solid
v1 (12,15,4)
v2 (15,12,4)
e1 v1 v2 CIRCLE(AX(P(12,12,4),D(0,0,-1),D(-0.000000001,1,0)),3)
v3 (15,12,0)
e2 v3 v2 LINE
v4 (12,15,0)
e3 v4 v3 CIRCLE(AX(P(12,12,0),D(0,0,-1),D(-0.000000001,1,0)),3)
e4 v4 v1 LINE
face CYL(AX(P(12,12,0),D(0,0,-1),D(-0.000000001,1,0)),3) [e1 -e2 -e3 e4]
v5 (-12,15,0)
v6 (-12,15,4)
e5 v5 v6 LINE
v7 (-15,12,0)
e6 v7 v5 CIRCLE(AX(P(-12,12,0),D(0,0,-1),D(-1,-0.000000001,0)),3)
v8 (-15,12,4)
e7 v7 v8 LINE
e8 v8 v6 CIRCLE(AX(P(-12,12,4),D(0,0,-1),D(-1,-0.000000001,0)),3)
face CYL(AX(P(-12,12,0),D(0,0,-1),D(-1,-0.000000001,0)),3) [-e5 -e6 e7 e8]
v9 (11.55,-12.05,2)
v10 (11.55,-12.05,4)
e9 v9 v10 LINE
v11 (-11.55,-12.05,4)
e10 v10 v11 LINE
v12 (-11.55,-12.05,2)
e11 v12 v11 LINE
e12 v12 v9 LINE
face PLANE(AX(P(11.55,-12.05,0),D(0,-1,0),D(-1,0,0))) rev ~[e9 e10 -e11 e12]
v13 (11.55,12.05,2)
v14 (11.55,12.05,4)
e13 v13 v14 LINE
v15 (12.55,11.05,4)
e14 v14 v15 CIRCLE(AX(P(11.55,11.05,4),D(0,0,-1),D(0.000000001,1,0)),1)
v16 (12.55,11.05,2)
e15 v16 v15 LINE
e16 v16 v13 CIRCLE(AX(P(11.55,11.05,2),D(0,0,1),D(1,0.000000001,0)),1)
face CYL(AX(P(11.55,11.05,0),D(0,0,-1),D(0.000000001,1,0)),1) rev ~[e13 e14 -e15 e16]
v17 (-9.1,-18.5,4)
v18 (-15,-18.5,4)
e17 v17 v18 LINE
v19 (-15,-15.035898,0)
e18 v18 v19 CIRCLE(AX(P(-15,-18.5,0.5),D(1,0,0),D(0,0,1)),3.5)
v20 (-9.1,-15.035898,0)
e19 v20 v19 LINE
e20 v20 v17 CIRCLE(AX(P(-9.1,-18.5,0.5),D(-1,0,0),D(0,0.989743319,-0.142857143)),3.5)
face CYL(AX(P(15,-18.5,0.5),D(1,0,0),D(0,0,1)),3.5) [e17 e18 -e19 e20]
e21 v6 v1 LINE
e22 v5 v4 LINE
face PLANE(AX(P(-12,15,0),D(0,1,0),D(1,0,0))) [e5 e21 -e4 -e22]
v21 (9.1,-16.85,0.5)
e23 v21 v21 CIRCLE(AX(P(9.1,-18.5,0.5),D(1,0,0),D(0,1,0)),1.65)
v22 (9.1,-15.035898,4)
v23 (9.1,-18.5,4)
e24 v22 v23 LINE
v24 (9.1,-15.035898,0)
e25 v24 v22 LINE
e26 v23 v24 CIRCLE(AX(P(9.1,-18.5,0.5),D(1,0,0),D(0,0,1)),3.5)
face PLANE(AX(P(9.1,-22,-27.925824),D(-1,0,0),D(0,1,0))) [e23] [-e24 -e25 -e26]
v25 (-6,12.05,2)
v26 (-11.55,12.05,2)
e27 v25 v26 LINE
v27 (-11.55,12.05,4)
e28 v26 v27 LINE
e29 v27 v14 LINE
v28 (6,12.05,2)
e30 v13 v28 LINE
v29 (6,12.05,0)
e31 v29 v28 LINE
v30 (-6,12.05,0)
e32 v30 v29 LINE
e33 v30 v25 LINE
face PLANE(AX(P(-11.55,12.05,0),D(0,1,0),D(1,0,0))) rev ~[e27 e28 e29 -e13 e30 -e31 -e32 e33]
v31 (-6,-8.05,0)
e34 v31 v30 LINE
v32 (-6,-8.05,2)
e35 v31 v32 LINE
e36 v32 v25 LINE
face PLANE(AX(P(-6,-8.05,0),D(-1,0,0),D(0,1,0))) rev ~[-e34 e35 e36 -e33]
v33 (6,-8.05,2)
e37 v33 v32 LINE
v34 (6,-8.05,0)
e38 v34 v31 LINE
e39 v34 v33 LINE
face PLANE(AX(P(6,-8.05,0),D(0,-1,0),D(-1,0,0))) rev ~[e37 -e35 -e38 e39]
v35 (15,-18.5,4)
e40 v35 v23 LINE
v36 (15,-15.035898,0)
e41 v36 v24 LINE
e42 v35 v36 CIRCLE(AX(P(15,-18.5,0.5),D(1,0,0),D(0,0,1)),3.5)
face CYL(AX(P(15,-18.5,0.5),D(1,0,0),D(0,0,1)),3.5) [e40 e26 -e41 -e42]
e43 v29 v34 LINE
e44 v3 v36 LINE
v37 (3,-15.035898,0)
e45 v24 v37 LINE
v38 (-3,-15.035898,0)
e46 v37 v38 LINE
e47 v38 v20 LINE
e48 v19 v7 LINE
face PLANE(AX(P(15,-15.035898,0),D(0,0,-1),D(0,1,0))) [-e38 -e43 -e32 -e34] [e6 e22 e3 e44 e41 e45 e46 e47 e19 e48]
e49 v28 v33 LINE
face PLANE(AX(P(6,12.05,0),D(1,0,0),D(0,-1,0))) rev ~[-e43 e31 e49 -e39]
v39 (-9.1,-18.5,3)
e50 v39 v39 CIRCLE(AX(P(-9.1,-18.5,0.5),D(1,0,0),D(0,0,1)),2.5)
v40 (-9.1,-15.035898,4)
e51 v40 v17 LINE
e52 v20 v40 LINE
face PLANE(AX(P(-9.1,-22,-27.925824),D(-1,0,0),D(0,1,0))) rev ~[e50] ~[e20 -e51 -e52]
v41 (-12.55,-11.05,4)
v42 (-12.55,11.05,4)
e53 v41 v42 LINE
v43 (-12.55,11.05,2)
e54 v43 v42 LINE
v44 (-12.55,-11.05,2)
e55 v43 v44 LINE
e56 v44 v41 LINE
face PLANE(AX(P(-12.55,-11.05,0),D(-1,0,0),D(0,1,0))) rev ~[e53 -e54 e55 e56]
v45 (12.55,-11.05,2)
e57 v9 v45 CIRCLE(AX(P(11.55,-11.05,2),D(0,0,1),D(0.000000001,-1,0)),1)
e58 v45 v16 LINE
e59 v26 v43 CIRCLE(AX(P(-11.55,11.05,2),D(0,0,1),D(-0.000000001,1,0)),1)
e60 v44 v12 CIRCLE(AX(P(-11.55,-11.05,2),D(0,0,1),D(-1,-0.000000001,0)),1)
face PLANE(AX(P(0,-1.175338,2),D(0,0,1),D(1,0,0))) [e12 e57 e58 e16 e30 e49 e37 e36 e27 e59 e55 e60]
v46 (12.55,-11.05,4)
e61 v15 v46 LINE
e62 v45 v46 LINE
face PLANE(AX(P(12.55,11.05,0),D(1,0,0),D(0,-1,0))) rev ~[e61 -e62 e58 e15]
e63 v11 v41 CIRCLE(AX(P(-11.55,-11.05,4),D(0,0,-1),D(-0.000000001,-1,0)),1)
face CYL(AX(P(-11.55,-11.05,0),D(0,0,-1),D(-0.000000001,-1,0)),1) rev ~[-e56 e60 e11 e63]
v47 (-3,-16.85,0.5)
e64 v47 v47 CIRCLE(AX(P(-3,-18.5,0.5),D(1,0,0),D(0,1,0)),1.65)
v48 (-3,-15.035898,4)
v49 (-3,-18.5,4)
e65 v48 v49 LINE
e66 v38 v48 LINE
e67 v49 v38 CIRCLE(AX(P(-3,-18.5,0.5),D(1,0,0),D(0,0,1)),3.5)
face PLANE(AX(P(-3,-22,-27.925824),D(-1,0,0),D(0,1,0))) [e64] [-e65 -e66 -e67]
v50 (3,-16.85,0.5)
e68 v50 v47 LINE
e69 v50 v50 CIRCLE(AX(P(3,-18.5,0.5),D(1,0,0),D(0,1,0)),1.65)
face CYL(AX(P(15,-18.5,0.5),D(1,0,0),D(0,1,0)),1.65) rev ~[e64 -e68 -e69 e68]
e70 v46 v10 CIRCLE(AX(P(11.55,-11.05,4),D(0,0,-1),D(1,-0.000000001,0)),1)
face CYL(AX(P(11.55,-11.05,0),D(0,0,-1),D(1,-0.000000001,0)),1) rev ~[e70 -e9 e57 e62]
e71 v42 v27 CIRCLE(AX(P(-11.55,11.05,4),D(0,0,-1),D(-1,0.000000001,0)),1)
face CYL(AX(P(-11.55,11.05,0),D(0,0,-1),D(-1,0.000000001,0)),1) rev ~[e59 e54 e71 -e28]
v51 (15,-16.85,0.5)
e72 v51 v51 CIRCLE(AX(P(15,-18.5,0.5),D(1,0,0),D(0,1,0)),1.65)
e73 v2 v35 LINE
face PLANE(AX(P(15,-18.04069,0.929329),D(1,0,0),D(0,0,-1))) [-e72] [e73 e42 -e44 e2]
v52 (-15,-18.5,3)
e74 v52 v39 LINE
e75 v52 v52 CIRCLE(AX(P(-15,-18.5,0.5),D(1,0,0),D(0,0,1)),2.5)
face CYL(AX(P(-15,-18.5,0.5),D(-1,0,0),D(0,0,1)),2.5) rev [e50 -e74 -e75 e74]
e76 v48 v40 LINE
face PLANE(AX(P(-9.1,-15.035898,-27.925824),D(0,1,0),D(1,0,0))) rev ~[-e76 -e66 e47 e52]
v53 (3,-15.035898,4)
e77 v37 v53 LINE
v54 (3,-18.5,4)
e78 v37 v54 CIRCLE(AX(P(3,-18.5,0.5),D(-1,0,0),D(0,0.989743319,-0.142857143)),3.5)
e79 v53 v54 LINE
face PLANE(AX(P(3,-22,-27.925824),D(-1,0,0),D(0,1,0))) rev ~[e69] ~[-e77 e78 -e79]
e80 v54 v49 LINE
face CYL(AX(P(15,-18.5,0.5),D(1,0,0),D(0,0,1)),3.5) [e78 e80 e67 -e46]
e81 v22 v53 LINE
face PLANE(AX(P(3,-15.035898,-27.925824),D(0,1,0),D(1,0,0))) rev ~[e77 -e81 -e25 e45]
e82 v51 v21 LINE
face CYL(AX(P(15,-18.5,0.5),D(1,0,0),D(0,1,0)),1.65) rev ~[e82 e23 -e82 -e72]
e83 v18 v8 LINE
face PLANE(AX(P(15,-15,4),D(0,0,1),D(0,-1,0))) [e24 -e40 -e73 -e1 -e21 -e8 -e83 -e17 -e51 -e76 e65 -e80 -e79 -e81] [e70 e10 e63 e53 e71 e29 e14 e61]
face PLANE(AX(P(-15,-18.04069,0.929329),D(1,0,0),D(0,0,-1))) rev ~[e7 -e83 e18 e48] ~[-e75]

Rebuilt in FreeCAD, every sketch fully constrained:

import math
import FreeCAD as App
import Part
import Sketcher
Q = App.Units.Quantity


def add_polygon(sketch, points):
    """Adds a closed chain of lines whose ends are joined by coincident constraints."""
    first, n = sketch.GeometryCount, len(points)
    for a, b in zip(points, points[1:] + points[:1]):
        sketch.addGeometry(Part.LineSegment(App.Vector(*a, 0), App.Vector(*b, 0)), False)
    for i in range(n):
        sketch.addConstraint(Sketcher.Constraint("Coincident", first + i, 2, first + (i + 1) % n, 1))

doc = App.newDocument("Part")
body = doc.addObject("PartDesign::Body", "Body")

sketch1 = body.newObject("Sketcher::SketchObject", "Sketch")
sketch1.AttachmentSupport = (doc.getObject("XY_Plane"), [""])
sketch1.MapMode = "FlatFace"
sketch1.addGeometry([
    Part.LineSegment(App.Vector(-6, 12.1, 0), App.Vector(-11.6, 12.1, 0)),
    Part.ArcOfCircle(Part.Circle(App.Vector(-11.5, 11, 0), App.Vector(0, 0, 1), 1), math.radians(90), math.radians(180)),
    Part.LineSegment(App.Vector(-12.6, 11.1, 0), App.Vector(-12.6, -11.1, 0)),
    Part.ArcOfCircle(Part.Circle(App.Vector(-11.5, -11, 0), App.Vector(0, 0, 1), 1), math.radians(-180), math.radians(-90)),
    Part.LineSegment(App.Vector(-11.6, -12.1, 0), App.Vector(11.6, -12.1, 0)),
    Part.ArcOfCircle(Part.Circle(App.Vector(11.5, -11, 0), App.Vector(0, 0, 1), 1), math.radians(-90), math.radians(0)),
    Part.LineSegment(App.Vector(12.6, -11.1, 0), App.Vector(12.6, 11.1, 0)),
    Part.ArcOfCircle(Part.Circle(App.Vector(11.5, 11, 0), App.Vector(0, 0, 1), 1), math.radians(0), math.radians(90)),
    Part.LineSegment(App.Vector(11.6, 12.1, 0), App.Vector(6, 12.1, 0)),
    Part.LineSegment(App.Vector(6, 12.1, 0), App.Vector(6, -8.1, 0)),
    Part.LineSegment(App.Vector(6, -8.1, 0), App.Vector(-6, -8.1, 0)),
    Part.LineSegment(App.Vector(-6, -8.1, 0), App.Vector(-6, 12.1, 0)),
], False)
sketch1.addConstraint([
    Sketcher.Constraint("Tangent", 0, 2, 1, 1),
    Sketcher.Constraint("Tangent", 1, 2, 2, 1),
    Sketcher.Constraint("Tangent", 2, 2, 3, 1),
    Sketcher.Constraint("Tangent", 3, 2, 4, 1),
    Sketcher.Constraint("Tangent", 4, 2, 5, 1),
    Sketcher.Constraint("Tangent", 5, 2, 6, 1),
    Sketcher.Constraint("Tangent", 6, 2, 7, 1),
    Sketcher.Constraint("Tangent", 7, 2, 8, 1),
    Sketcher.Constraint("Coincident", 8, 2, 9, 1),
    Sketcher.Constraint("Coincident", 9, 2, 10, 1),
    Sketcher.Constraint("Coincident", 10, 2, 11, 1),
    Sketcher.Constraint("Coincident", 11, 2, 0, 1),
    Sketcher.Constraint("Horizontal", 0),
    Sketcher.Constraint("Vertical", 2),
    Sketcher.Constraint("Horizontal", 4),
    Sketcher.Constraint("Vertical", 6),
    Sketcher.Constraint("Horizontal", 8),
    Sketcher.Constraint("Vertical", 9),
    Sketcher.Constraint("Horizontal", 10),
    Sketcher.Constraint("Vertical", 11),
    Sketcher.Constraint("Equal", 1, 3),
    Sketcher.Constraint("Equal", 3, 5),
    Sketcher.Constraint("Equal", 5, 7),
    Sketcher.Constraint("Symmetric", 1, 3, 5, 3, -1, 1),
    Sketcher.Constraint("Symmetric", 8, 2, 11, 2, -2),
    Sketcher.Constraint("Radius", 1, Q("1 mm")),
    Sketcher.Constraint("DistanceX", 10, 2, 10, 1, Q("12 mm")),
    Sketcher.Constraint("DistanceX", 4, 1, 4, 2, Q("23.1 mm")),
    Sketcher.Constraint("DistanceY", 2, 2, 2, 1, Q("22.1 mm")),
    Sketcher.Constraint("DistanceY", 9, 2, 9, 1, Q("20.1 mm")),
])
pad1 = body.newObject("PartDesign::Pad", "Pad")
pad1.Profile = sketch1
pad1.Length = 2

sketch2 = body.newObject("Sketcher::SketchObject", "Sketch001")
sketch2.AttachmentSupport = (doc.getObject("XY_Plane"), [""])
sketch2.MapMode = "FlatFace"
sketch2.addGeometry([
    Part.LineSegment(App.Vector(12, 15, 0), App.Vector(-12, 15, 0)),
    Part.ArcOfCircle(Part.Circle(App.Vector(-12, 12, 0), App.Vector(0, 0, 1), 3), math.radians(90), math.radians(180)),
    Part.LineSegment(App.Vector(-15, 12, 0), App.Vector(-15, -15, 0)),
    Part.LineSegment(App.Vector(-15, -15, 0), App.Vector(15, -15, 0)),
    Part.LineSegment(App.Vector(15, -15, 0), App.Vector(15, 12, 0)),
    Part.ArcOfCircle(Part.Circle(App.Vector(12, 12, 0), App.Vector(0, 0, 1), 3), math.radians(0), math.radians(90)),
    Part.LineSegment(App.Vector(-11.6, 12.1, 0), App.Vector(11.6, 12.1, 0)),
    Part.ArcOfCircle(Part.Circle(App.Vector(11.5, 11, 0), App.Vector(0, 0, 1), 1), math.radians(0), math.radians(90)),
    Part.LineSegment(App.Vector(12.6, 11.1, 0), App.Vector(12.6, -11.1, 0)),
    Part.ArcOfCircle(Part.Circle(App.Vector(11.5, -11, 0), App.Vector(0, 0, 1), 1), math.radians(-90), math.radians(0)),
    Part.LineSegment(App.Vector(11.6, -12.1, 0), App.Vector(-11.6, -12.1, 0)),
    Part.ArcOfCircle(Part.Circle(App.Vector(-11.5, -11, 0), App.Vector(0, 0, 1), 1), math.radians(-180), math.radians(-90)),
    Part.LineSegment(App.Vector(-12.6, -11.1, 0), App.Vector(-12.6, 11.1, 0)),
    Part.ArcOfCircle(Part.Circle(App.Vector(-11.5, 11, 0), App.Vector(0, 0, 1), 1), math.radians(90), math.radians(180)),
], False)
sketch2.addConstraint([
    Sketcher.Constraint("Tangent", 0, 2, 1, 1),
    Sketcher.Constraint("Tangent", 1, 2, 2, 1),
    Sketcher.Constraint("Coincident", 2, 2, 3, 1),
    Sketcher.Constraint("Coincident", 3, 2, 4, 1),
    Sketcher.Constraint("Tangent", 4, 2, 5, 1),
    Sketcher.Constraint("Tangent", 5, 2, 0, 1),
    Sketcher.Constraint("Tangent", 6, 2, 7, 2),
    Sketcher.Constraint("Tangent", 7, 1, 8, 1),
    Sketcher.Constraint("Tangent", 8, 2, 9, 2),
    Sketcher.Constraint("Tangent", 9, 1, 10, 1),
    Sketcher.Constraint("Tangent", 10, 2, 11, 2),
    Sketcher.Constraint("Tangent", 11, 1, 12, 1),
    Sketcher.Constraint("Tangent", 12, 2, 13, 2),
    Sketcher.Constraint("Tangent", 13, 1, 6, 1),
    Sketcher.Constraint("Horizontal", 0),
    Sketcher.Constraint("Vertical", 2),
    Sketcher.Constraint("Horizontal", 3),
    Sketcher.Constraint("Vertical", 4),
    Sketcher.Constraint("Horizontal", 6),
    Sketcher.Constraint("Vertical", 8),
    Sketcher.Constraint("Horizontal", 10),
    Sketcher.Constraint("Vertical", 12),
    Sketcher.Constraint("Equal", 1, 5),
    Sketcher.Constraint("Equal", 7, 9),
    Sketcher.Constraint("Equal", 9, 11),
    Sketcher.Constraint("Equal", 11, 13),
    Sketcher.Constraint("Symmetric", 7, 3, 11, 3, -1, 1),
    Sketcher.Constraint("Radius", 1, Q("3 mm")),
    Sketcher.Constraint("Radius", 7, Q("1 mm")),
    Sketcher.Constraint("DistanceX", 0, 2, 0, 1, Q("24 mm")),
    Sketcher.Constraint("DistanceY", 2, 2, 2, 1, Q("27 mm")),
    Sketcher.Constraint("DistanceX", 6, 1, 6, 2, Q("23.1 mm")),
    Sketcher.Constraint("DistanceY", 8, 2, 8, 1, Q("22.1 mm")),
    Sketcher.Constraint("DistanceX", 1, 3, -1, 1, Q("12 mm")),
    Sketcher.Constraint("DistanceY", -1, 1, 1, 3, Q("12 mm")),
])
pad2 = body.newObject("PartDesign::Pad", "Pad001")
pad2.Profile = sketch2
pad2.Length = 4

sketch3 = body.newObject("Sketcher::SketchObject", "Sketch002")
sketch3.AttachmentSupport = (doc.getObject("YZ_Plane"), [""])
sketch3.MapMode = "FlatFace"
sketch3.AttachmentOffset = App.Placement(App.Vector(0, 0, 15), App.Rotation())
sketch3.addGeometry([
    Part.LineSegment(App.Vector(-15.036, 0, 0), App.Vector(-15, 0, 0)),
    Part.LineSegment(App.Vector(-15, 0, 0), App.Vector(-15, 4, 0)),
    Part.LineSegment(App.Vector(-15, 4, 0), App.Vector(-18.5, 4, 0)),
    Part.ArcOfCircle(Part.Circle(App.Vector(-18.5, 0.5, 0), App.Vector(0, 0, 1), 3.5), math.radians(90), math.radians(352)),
    Part.Circle(App.Vector(-18.5, 0.5, 0), App.Vector(0, 0, 1), 1.65),
], False)
sketch3.addConstraint([
    Sketcher.Constraint("Coincident", 0, 2, 1, 1),
    Sketcher.Constraint("Coincident", 1, 2, 2, 1),
    Sketcher.Constraint("Tangent", 2, 2, 3, 1),
    Sketcher.Constraint("Coincident", 3, 2, 0, 1),
    Sketcher.Constraint("Horizontal", 0),
    Sketcher.Constraint("Vertical", 1),
    Sketcher.Constraint("Horizontal", 2),
    Sketcher.Constraint("Coincident", 4, 3, 3, 3),
    Sketcher.Constraint("PointOnObject", 0, 2, -1),
    Sketcher.Constraint("Diameter", 4, Q("3.3 mm")),
    Sketcher.Constraint("Radius", 3, Q("3.5 mm")),
    Sketcher.Constraint("DistanceY", 1, 1, 1, 2, Q("4 mm")),
    Sketcher.Constraint("DistanceX", 2, 2, 2, 1, Q("3.5 mm")),
    Sketcher.Constraint("DistanceX", 0, 2, -1, 1, Q("15 mm")),
])
pad3 = body.newObject("PartDesign::Pad", "Pad002")
pad3.Profile = sketch3
pad3.Length = 30
pad3.Reversed = True

sketch4 = body.newObject("Sketcher::SketchObject", "Sketch003")
sketch4.AttachmentSupport = (doc.getObject("XY_Plane"), [""])
sketch4.MapMode = "FlatFace"
add_polygon(sketch4, [(-9, -15), (-9, -22), (-3, -22), (-3, -15)])
add_polygon(sketch4, [(3, -15), (3, -22), (9, -22), (9, -15)])
sketch4.addConstraint([
    Sketcher.Constraint("Vertical", 0),
    Sketcher.Constraint("Horizontal", 1),
    Sketcher.Constraint("Vertical", 2),
    Sketcher.Constraint("Horizontal", 3),
    Sketcher.Constraint("Vertical", 4),
    Sketcher.Constraint("Horizontal", 5),
    Sketcher.Constraint("Vertical", 6),
    Sketcher.Constraint("Horizontal", 7),
    Sketcher.Constraint("Symmetric", 1, 2, 4, 2, -2),
    Sketcher.Constraint("Symmetric", 3, 2, 6, 2, -2),
    Sketcher.Constraint("DistanceX", 1, 1, 1, 2, Q("6.1 mm")),
    Sketcher.Constraint("DistanceY", 0, 2, -1, 1, Q("22 mm")),
    Sketcher.Constraint("DistanceX", 1, 2, -1, 1, Q("3 mm")),
    Sketcher.Constraint("DistanceY", 0, 2, 0, 1, Q("6.964102 mm")),
])
pocket1 = body.newObject("PartDesign::Pocket", "Pocket")
pocket1.Profile = sketch4
pocket1.Type = "ThroughAll"
pocket1.Midplane = True

sketch5 = body.newObject("Sketcher::SketchObject", "Sketch004")
sketch5.AttachmentSupport = (doc.getObject("YZ_Plane"), [""])
sketch5.MapMode = "FlatFace"
sketch5.AttachmentOffset = App.Placement(App.Vector(0, 0, -15), App.Rotation())
sketch5.addGeometry([
    Part.Circle(App.Vector(-18.5, 0.5, 0), App.Vector(0, 0, 1), 2.5),
    Part.Circle(App.Vector(-18.5, 0.5, 0), App.Vector(0, 0, 1), 1.6),
], False)
sketch5.addConstraint([
    Sketcher.Constraint("Coincident", 1, 3, 0, 3),
    Sketcher.Constraint("Diameter", 0, Q("5 mm")),
    Sketcher.Constraint("Diameter", 1, Q("3.3 mm")),
    Sketcher.Constraint("DistanceX", 0, 3, -1, 1, Q("18.5 mm")),
    Sketcher.Constraint("DistanceY", -1, 1, 0, 3, Q("0.5 mm")),
])
pocket2 = body.newObject("PartDesign::Pocket", "Pocket001")
pocket2.Profile = sketch5
pocket2.Length = 5.9
pocket2.Reversed = True

doc.recompute()
